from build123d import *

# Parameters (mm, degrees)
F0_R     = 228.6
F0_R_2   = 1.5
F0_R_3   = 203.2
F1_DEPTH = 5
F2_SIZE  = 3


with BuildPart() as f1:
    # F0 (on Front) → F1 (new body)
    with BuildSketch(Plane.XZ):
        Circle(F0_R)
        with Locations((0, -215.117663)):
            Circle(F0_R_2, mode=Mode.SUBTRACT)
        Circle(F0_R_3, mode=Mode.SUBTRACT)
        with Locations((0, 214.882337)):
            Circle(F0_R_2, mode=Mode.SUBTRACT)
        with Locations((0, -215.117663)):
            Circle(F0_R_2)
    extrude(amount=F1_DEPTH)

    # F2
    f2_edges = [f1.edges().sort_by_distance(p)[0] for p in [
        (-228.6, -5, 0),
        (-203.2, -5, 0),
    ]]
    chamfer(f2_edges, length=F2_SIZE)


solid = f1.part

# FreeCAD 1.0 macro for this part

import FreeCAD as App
import Part
import Sketcher
from FreeCAD import Vector


def edges_at(feature, points):
    """Names of the edges that pass closest to the given points."""
    edges = feature.Shape.Edges
    near = lambda p: min(range(len(edges)), key=lambda i: edges[i].distToShape(Part.Vertex(*p))[0])
    return sorted({f"Edge{near(p) + 1}" for p in points})

doc = App.newDocument("Part")
body = doc.addObject("PartDesign::Body", "Body")

sketch1 = doc.addObject("Sketcher::SketchObject", "Sketch")
body.addObject(sketch1)
sketch1.AttachmentSupport = (doc.XZ_Plane, [""])
sketch1.MapMode = "FlatFace"
sketch1.addGeometry([
    Part.Circle(Vector(0, 0, 0), Vector(0, 0, 1), 228.6),
    Part.Circle(Vector(0, 0, 0), Vector(0, 0, 1), 203.2),
    Part.Circle(Vector(0, 214.882337, 0), Vector(0, 0, 1), 1.5),
], False)
sketch1.addConstraint([
    Sketcher.Constraint("Coincident", 0, 3, -1, 1),
    Sketcher.Constraint("Coincident", 1, 3, -1, 1),
    Sketcher.Constraint("PointOnObject", 2, 3, -2),
    Sketcher.Constraint("Diameter", 2, 3.0),
    Sketcher.Constraint("Diameter", 0, 457.2),
    Sketcher.Constraint("Diameter", 1, 406.4),
    Sketcher.Constraint("DistanceY", -1, 1, 2, 3, 214.882337),
])
pad1 = doc.addObject("PartDesign::Pad", "Pad")
body.addObject(pad1)
pad1.Profile = sketch1
pad1.Length = 5
doc.recompute()

chamfer = doc.addObject("PartDesign::Chamfer", "Chamfer")
body.addObject(chamfer)
chamfer.Base = (pad1, edges_at(pad1, [(-228.6, -5, 0), (-203.2, -5, 0)]))
chamfer.Size = 3

doc.recompute()
